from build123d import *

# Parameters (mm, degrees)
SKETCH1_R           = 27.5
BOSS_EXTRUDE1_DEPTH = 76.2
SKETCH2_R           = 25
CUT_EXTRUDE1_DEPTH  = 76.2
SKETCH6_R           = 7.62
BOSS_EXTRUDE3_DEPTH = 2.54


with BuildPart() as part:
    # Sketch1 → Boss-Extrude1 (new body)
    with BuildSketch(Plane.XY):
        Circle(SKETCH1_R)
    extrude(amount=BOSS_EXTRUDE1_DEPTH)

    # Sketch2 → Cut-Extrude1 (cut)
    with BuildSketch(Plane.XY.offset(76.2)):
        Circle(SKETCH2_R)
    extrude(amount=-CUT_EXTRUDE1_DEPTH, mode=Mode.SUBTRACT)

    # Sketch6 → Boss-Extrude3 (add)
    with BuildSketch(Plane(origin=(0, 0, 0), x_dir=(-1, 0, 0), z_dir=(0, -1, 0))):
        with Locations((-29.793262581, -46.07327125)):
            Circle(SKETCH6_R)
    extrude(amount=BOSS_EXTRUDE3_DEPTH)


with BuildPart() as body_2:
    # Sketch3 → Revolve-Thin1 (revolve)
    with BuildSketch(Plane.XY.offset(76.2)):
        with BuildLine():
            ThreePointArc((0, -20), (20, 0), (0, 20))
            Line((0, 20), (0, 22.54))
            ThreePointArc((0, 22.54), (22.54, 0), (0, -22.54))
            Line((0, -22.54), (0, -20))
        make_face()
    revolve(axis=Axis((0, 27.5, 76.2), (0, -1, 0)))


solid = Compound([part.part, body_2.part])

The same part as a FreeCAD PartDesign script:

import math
import FreeCAD as App
import Part
import Sketcher

V = App.Vector

doc = App.newDocument("Part")
params = doc.addObject("Spreadsheet::Sheet", "Params")
for row, (alias, value) in enumerate([
    ("sketch1_diameter", "55 mm"),
    ("pad1_length", "76.2 mm"),
    ("sketch2_diameter", "50 mm"),
    ("pocket1_length", "76.2 mm"),
    ("sketch3_diameter", "15.24 mm"),
    ("pad2_length", "2.54 mm"),
    ("sketch4_radius", "20 mm"),
    ("sketch4_radius2", "22.54 mm"),
    ("revolution_angle", "360 deg"),
], start=1):
    params.set(f"A{row}", alias)
    params.set(f"B{row}", "=" + value)
    params.setAlias(f"B{row}", alias)

body = doc.addObject("PartDesign::Body", "Body")

sketch1 = doc.addObject("Sketcher::SketchObject", "Sketch")
body.addObject(sketch1)
sketch1.AttachmentSupport = (doc.XY_Plane, [""])
sketch1.MapMode = "FlatFace"
sketch1.addGeometry(Part.Circle(V(0, 0, 0), V(0, 0, 1), 28), False)
sketch1.addConstraint([
    Sketcher.Constraint("Coincident", 0, 3, -1, 1),
    Sketcher.Constraint("Diameter", 0, 55.0),
])
sketch1.setExpression("Constraints[1]", "Params.sketch1_diameter")
pad1 = doc.addObject("PartDesign::Pad", "Pad")
body.addObject(pad1)
pad1.Profile = sketch1
pad1.setExpression("Length", "Params.pad1_length")

sketch2 = doc.addObject("Sketcher::SketchObject", "Sketch001")
body.addObject(sketch2)
sketch2.AttachmentSupport = (doc.XY_Plane, [""])
sketch2.MapMode = "FlatFace"
sketch2.AttachmentOffset = App.Placement(V(0, 0, 76.2), App.Rotation())
sketch2.addGeometry(Part.Circle(V(0, 0, 0), V(0, 0, 1), 25), False)
sketch2.addConstraint([
    Sketcher.Constraint("Coincident", 0, 3, -1, 1),
    Sketcher.Constraint("Diameter", 0, 50.0),
])
sketch2.setExpression("Constraints[1]", "Params.sketch2_diameter")
pocket1 = doc.addObject("PartDesign::Pocket", "Pocket")
body.addObject(pocket1)
pocket1.Profile = sketch2
pocket1.setExpression("Length", "Params.pocket1_length")

sketch3 = doc.addObject("Sketcher::SketchObject", "Sketch002")
body.addObject(sketch3)
sketch3.AttachmentSupport = (doc.XZ_Plane, [""])
sketch3.MapMode = "FlatFace"
sketch3.addGeometry(Part.Circle(V(30, 46, 0), V(0, 0, 1), 8), False)
sketch3.addConstraint([
    Sketcher.Constraint("Diameter", 0, 15.24),
    Sketcher.Constraint("DistanceY", -1, 1, 0, 3, 46.073271),
    Sketcher.Constraint("DistanceX", -1, 1, 0, 3, 29.793263),
])
sketch3.setExpression("Constraints[0]", "Params.sketch3_diameter")
pad2 = doc.addObject("PartDesign::Pad", "Pad001")
body.addObject(pad2)
pad2.Profile = sketch3
pad2.setExpression("Length", "Params.pad2_length")
body2 = doc.addObject("PartDesign::Body", "Body001")

sketch4 = doc.addObject("Sketcher::SketchObject", "Sketch003")
body2.addObject(sketch4)
sketch4.AttachmentSupport = (doc.getObject("XY_Plane001"), [""])
sketch4.MapMode = "FlatFace"
sketch4.AttachmentOffset = App.Placement(V(0, 0, 76.2), App.Rotation())
sketch4.addGeometry([
    Part.ArcOfCircle(Part.Circle(V(0, 0, 0), V(0, 0, 1), 20), math.radians(-90), math.radians(90)),
    Part.LineSegment(V(0, -20, 0), V(0, -22.5, 0)),
    Part.ArcOfCircle(Part.Circle(V(0, 0, 0), V(0, 0, 1), 22.5), math.radians(-90), math.radians(90)),
    Part.LineSegment(V(0, 22.5, 0), V(0, 20, 0)),
], False)
sketch4.addConstraint([
    Sketcher.Constraint("Coincident", 0, 1, 1, 1),
    Sketcher.Constraint("Coincident", 1, 2, 2, 1),
    Sketcher.Constraint("Coincident", 2, 2, 3, 1),
    Sketcher.Constraint("Coincident", 3, 2, 0, 2),
    Sketcher.Constraint("Vertical", 1),
    Sketcher.Constraint("Vertical", 3),
    Sketcher.Constraint("Coincident", 0, 3, -1, 1),
    Sketcher.Constraint("Coincident", 2, 3, -1, 1),
    Sketcher.Constraint("PointOnObject", 0, 1, -2),
    Sketcher.Constraint("PointOnObject", 2, 2, -2),
    Sketcher.Constraint("Radius", 0, 20.0),
    Sketcher.Constraint("Radius", 2, 22.54),
])
sketch4.setExpression("Constraints[10]", "Params.sketch4_radius")
sketch4.setExpression("Constraints[11]", "Params.sketch4_radius2")
revolution = doc.addObject("PartDesign::Revolution", "Revolution")
body2.addObject(revolution)
revolution.Profile = sketch4
revolution.ReferenceAxis = (sketch4, ["V_Axis"])
revolution.setExpression("Angle", "Params.revolution_angle")

doc.recompute()
